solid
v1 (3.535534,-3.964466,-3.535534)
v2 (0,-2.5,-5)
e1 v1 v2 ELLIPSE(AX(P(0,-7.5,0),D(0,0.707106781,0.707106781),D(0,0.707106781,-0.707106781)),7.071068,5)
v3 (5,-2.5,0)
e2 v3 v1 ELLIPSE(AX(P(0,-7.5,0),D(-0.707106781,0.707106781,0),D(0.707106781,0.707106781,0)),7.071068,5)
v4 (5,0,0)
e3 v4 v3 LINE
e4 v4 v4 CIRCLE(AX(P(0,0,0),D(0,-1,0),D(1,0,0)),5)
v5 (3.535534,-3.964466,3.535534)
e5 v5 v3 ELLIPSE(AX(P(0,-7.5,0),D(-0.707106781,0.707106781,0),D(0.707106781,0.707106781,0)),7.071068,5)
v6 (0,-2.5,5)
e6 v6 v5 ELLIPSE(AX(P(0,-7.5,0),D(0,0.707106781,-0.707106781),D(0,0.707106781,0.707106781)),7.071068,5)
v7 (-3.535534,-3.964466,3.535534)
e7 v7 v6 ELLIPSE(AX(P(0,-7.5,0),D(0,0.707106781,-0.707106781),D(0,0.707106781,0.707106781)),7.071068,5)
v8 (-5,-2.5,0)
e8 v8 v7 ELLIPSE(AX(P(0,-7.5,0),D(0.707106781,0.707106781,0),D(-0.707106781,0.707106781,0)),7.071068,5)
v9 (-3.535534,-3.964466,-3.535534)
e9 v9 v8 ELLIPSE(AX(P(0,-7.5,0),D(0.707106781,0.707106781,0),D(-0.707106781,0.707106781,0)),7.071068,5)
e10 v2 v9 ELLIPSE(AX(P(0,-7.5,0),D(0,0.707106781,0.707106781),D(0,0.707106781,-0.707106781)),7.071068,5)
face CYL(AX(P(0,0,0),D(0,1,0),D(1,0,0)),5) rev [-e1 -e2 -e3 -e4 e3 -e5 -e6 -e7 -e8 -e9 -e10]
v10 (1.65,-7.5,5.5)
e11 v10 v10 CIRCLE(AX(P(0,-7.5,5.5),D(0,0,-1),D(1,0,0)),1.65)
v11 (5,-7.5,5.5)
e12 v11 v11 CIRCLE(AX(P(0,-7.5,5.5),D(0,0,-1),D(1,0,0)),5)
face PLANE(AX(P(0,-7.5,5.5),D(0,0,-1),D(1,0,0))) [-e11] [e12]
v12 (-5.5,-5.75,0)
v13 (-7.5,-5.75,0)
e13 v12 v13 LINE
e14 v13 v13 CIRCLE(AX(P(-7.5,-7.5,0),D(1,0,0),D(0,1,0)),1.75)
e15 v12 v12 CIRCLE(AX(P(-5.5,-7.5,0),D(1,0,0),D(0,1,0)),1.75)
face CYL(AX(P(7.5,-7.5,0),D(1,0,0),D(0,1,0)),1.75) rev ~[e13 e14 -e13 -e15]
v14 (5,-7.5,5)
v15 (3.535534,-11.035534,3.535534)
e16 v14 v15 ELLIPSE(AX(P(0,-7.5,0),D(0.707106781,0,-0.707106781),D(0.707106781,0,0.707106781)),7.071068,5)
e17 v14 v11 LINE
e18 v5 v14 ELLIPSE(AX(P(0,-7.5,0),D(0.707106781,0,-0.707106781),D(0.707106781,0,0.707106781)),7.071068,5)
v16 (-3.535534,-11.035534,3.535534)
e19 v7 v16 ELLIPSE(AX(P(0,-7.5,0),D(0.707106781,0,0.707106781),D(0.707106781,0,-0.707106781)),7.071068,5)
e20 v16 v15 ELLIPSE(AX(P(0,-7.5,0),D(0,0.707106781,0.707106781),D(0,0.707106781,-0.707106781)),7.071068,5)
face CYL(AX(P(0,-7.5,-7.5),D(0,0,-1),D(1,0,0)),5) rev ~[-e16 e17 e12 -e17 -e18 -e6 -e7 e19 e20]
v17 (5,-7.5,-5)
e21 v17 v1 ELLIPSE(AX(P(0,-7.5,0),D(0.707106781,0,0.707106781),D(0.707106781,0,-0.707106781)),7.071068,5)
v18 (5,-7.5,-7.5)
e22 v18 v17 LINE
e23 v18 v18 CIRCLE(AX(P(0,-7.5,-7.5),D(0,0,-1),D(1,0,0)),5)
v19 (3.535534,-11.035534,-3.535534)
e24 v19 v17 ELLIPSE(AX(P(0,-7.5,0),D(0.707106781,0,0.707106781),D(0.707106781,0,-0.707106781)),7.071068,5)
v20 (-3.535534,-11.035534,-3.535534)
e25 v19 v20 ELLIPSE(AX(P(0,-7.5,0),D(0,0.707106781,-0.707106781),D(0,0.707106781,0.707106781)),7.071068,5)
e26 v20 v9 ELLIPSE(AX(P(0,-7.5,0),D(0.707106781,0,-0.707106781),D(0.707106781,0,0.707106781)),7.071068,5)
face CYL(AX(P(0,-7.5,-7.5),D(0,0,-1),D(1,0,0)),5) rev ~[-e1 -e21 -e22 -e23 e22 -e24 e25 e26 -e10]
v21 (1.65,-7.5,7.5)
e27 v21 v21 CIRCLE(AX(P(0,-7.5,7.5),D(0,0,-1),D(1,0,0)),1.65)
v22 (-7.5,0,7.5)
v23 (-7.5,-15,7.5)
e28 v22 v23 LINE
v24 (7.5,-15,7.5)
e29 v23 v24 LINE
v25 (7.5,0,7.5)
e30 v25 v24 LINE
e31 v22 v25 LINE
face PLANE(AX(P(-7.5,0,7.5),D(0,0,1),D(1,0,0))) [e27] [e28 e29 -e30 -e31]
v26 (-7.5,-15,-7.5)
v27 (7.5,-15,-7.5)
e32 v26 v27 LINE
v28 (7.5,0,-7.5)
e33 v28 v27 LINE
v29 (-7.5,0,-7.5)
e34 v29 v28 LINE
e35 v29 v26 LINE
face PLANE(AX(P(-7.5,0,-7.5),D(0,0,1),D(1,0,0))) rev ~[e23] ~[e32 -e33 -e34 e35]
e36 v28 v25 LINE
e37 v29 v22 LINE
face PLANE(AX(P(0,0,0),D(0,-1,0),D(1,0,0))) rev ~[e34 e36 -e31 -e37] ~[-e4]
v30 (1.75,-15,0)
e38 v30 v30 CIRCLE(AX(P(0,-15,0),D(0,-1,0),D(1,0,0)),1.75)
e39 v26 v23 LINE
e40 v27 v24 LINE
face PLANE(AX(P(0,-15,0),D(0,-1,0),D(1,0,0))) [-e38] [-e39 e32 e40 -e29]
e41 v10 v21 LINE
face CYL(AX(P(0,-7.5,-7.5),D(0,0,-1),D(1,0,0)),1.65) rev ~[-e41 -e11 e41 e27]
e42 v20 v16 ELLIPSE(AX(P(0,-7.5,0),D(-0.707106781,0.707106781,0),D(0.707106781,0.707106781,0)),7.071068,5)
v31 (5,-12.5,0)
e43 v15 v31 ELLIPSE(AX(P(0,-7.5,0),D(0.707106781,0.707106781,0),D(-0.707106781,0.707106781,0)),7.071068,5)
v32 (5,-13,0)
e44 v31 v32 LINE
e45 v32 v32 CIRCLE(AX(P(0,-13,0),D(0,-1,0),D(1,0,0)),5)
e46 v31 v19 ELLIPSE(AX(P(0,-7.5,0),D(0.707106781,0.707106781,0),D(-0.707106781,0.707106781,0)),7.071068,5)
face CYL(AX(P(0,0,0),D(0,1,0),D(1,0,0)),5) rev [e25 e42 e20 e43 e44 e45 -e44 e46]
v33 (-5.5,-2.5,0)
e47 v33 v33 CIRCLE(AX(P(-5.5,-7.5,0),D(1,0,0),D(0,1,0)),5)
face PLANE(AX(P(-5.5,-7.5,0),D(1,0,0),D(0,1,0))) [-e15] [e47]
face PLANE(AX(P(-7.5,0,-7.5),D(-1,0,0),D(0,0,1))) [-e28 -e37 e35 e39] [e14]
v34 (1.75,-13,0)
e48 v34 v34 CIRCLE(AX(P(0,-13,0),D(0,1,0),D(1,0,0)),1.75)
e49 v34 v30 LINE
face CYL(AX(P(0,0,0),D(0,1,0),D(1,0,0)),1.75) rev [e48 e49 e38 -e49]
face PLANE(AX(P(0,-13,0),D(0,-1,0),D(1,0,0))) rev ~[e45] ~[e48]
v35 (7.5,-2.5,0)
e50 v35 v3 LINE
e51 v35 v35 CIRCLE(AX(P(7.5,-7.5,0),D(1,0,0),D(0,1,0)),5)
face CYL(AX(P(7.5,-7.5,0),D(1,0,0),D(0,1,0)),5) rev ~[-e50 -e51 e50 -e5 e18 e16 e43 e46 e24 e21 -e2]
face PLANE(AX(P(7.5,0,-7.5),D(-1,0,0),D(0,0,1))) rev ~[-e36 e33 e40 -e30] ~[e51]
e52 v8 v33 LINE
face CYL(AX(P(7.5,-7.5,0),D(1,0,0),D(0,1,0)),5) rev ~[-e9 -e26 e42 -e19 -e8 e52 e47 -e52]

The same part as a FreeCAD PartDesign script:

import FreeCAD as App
import Part
import Sketcher

doc = App.newDocument("Part")
body = doc.addObject("PartDesign::Body", "Body")

sketch1 = body.newObject("Sketcher::SketchObject", "Sketch")
sketch1.AttachmentSupport = (doc.getObject("XZ_Plane"), [""])
sketch1.MapMode = "FlatFace"
sketch1.addGeometry(Part.LineSegment(App.Vector(-7.5, 7.5, 0), App.Vector(-7.5, -7.5, 0)), False)
sketch1.addGeometry(Part.LineSegment(App.Vector(-7.5, -7.5, 0), App.Vector(7.5, -7.5, 0)), False)
sketch1.addGeometry(Part.LineSegment(App.Vector(7.5, -7.5, 0), App.Vector(7.5, 7.5, 0)), False)
sketch1.addGeometry(Part.LineSegment(App.Vector(7.5, 7.5, 0), App.Vector(-7.5, 7.5, 0)), False)
sketch1.addGeometry(Part.Circle(App.Vector(0, 0, 0), App.Vector(0, 0, 1), 1.8), False)
sketch1.addConstraint(Sketcher.Constraint("Coincident", 0, 2, 1, 1))
sketch1.addConstraint(Sketcher.Constraint("Coincident", 1, 2, 2, 1))
sketch1.addConstraint(Sketcher.Constraint("Coincident", 2, 2, 3, 1))
sketch1.addConstraint(Sketcher.Constraint("Coincident", 3, 2, 0, 1))
sketch1.addConstraint(Sketcher.Constraint("Vertical", 0))
sketch1.addConstraint(Sketcher.Constraint("Horizontal", 1))
sketch1.addConstraint(Sketcher.Constraint("Vertical", 2))
sketch1.addConstraint(Sketcher.Constraint("Horizontal", 3))
sketch1.addConstraint(Sketcher.Constraint("Coincident", 4, 3, -1, 1))
sketch1.addConstraint(Sketcher.Constraint("Symmetric", 0, 2, 2, 2, -1, 1))
sketch1.addConstraint(Sketcher.Constraint("Equal", 3, 0))
sketch1.addConstraint(Sketcher.Constraint("Diameter", 4, 3.5))
sketch1.addConstraint(Sketcher.Constraint("DistanceX", 1, 1, 1, 2, 15.0))
pad1 = body.newObject("PartDesign::Pad", "Pad")
pad1.Profile = sketch1
pad1.Length = 15

sketch2 = body.newObject("Sketcher::SketchObject", "Sketch001")
sketch2.AttachmentSupport = (doc.getObject("XZ_Plane"), [""])
sketch2.MapMode = "FlatFace"
sketch2.addGeometry(Part.Circle(App.Vector(0, 0, 0), App.Vector(0, 0, 1), 5), False)
sketch2.addConstraint(Sketcher.Constraint("Coincident", 0, 3, -1, 1))
sketch2.addConstraint(Sketcher.Constraint("Diameter", 0, 10.0))
pocket1 = body.newObject("PartDesign::Pocket", "Pocket")
pocket1.Profile = sketch2
pocket1.Length = 13
pocket1.Reversed = True

sketch3 = body.newObject("Sketcher::SketchObject", "Sketch002")
sketch3.AttachmentSupport = (doc.getObject("YZ_Plane"), [""])
sketch3.MapMode = "FlatFace"
sketch3.AttachmentOffset = App.Placement(App.Vector(0, 0, 7.5), App.Rotation())
sketch3.addGeometry(Part.Circle(App.Vector(-7.5, 0, 0), App.Vector(0, 0, 1), 1.8), False)
sketch3.addConstraint(Sketcher.Constraint("PointOnObject", 0, 3, -1))
sketch3.addConstraint(Sketcher.Constraint("Diameter", 0, 3.5))
sketch3.addConstraint(Sketcher.Constraint("DistanceX", 0, 3, -1, 1, 7.5))
pocket2 = body.newObject("PartDesign::Pocket", "Pocket001")
pocket2.Profile = sketch3
pocket2.Length = 15

sketch4 = body.newObject("Sketcher::SketchObject", "Sketch003")
sketch4.AttachmentSupport = (doc.getObject("YZ_Plane"), [""])
sketch4.MapMode = "FlatFace"
sketch4.AttachmentOffset = App.Placement(App.Vector(0, 0, 7.5), App.Rotation())
sketch4.addGeometry(Part.Circle(App.Vector(-7.5, 0, 0), App.Vector(0, 0, 1), 5), False)
sketch4.addGeometry(Part.Circle(App.Vector(-7.5, 0, 0), App.Vector(0, 0, 1), 1.8), False)
sketch4.addConstraint(Sketcher.Constraint("Coincident", 1, 3, 0, 3))
sketch4.addConstraint(Sketcher.Constraint("PointOnObject", 0, 3, -1))
sketch4.addConstraint(Sketcher.Constraint("Diameter", 0, 10.0))
sketch4.addConstraint(Sketcher.Constraint("Diameter", 1, 3.5))
sketch4.addConstraint(Sketcher.Constraint("DistanceX", 0, 3, -1, 1, 7.5))
pocket3 = body.newObject("PartDesign::Pocket", "Pocket002")
pocket3.Profile = sketch4
pocket3.Length = 13

sketch5 = body.newObject("Sketcher::SketchObject", "Sketch004")
sketch5.AttachmentSupport = (doc.getObject("XY_Plane"), [""])
sketch5.MapMode = "FlatFace"
sketch5.AttachmentOffset = App.Placement(App.Vector(0, 0, -7.5), App.Rotation())
sketch5.addGeometry(Part.Circle(App.Vector(0, -7.5, 0), App.Vector(0, 0, 1), 1.6), False)
sketch5.addConstraint(Sketcher.Constraint("PointOnObject", 0, 3, -2))
sketch5.addConstraint(Sketcher.Constraint("Diameter", 0, 3.3))
sketch5.addConstraint(Sketcher.Constraint("DistanceY", 0, 3, -1, 1, 7.5))
pocket4 = body.newObject("PartDesign::Pocket", "Pocket003")
pocket4.Profile = sketch5
pocket4.Length = 15
pocket4.Reversed = True

sketch6 = body.newObject("Sketcher::SketchObject", "Sketch005")
sketch6.AttachmentSupport = (doc.getObject("XY_Plane"), [""])
sketch6.MapMode = "FlatFace"
sketch6.AttachmentOffset = App.Placement(App.Vector(0, 0, -7.5), App.Rotation())
sketch6.addGeometry(Part.Circle(App.Vector(0, -7.5, 0), App.Vector(0, 0, 1), 5), False)
sketch6.addGeometry(Part.Circle(App.Vector(0, -7.5, 0), App.Vector(0, 0, 1), 1.6), False)
sketch6.addConstraint(Sketcher.Constraint("Coincident", 1, 3, 0, 3))
sketch6.addConstraint(Sketcher.Constraint("PointOnObject", 0, 3, -2))
sketch6.addConstraint(Sketcher.Constraint("Diameter", 0, 10.0))
sketch6.addConstraint(Sketcher.Constraint("Diameter", 1, 3.3))
sketch6.addConstraint(Sketcher.Constraint("DistanceY", 0, 3, -1, 1, 7.5))
pocket5 = body.newObject("PartDesign::Pocket", "Pocket004")
pocket5.Profile = sketch6
pocket5.Length = 13
pocket5.Reversed = True

doc.recompute()
